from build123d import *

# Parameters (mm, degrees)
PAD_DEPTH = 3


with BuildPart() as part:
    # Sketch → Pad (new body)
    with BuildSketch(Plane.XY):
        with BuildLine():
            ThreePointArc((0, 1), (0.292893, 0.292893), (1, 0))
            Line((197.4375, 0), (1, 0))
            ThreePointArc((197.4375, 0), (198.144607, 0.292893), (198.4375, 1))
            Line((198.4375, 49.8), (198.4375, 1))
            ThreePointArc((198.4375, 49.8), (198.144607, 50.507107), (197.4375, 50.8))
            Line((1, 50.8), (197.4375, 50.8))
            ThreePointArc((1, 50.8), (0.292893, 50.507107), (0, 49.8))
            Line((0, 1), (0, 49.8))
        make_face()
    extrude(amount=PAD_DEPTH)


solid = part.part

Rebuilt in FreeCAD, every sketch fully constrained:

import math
import FreeCAD as App
import Part
import Sketcher
Q = App.Units.Quantity

doc = App.newDocument("Part")
body = doc.addObject("PartDesign::Body", "Body")

# Sketch on XY plane
sketch1 = body.newObject("Sketcher::SketchObject", "Sketch")
sketch1.AttachmentSupport = (doc.getObject("XY_Plane"), [""])
sketch1.MapMode = "FlatFace"
sketch1.addGeometry([
    Part.ArcOfCircle(Part.Circle(App.Vector(0.999999, 0.999999, 0), App.Vector(0, 0, 1), 0.999999), math.radians(179.999957), math.radians(270.000043)),  # 0
    Part.LineSegment(App.Vector(1, 0, 0), App.Vector(197.4375, 0, 0)),  # 1
    Part.ArcOfCircle(Part.Circle(App.Vector(197.437501, 0.999999, 0), App.Vector(0, 0, 1), 0.999999), math.radians(-90.000043), math.radians(0.000043)),  # 2
    Part.LineSegment(App.Vector(198.4375, 1, 0), App.Vector(198.4375, 49.8, 0)),  # 3
    Part.ArcOfCircle(Part.Circle(App.Vector(197.437501, 49.800001, 0), App.Vector(0, 0, 1), 0.999999), math.radians(-0.000043), math.radians(90.000043)),  # 4
    Part.LineSegment(App.Vector(197.4375, 50.8, 0), App.Vector(1, 50.8, 0)),  # 5
    Part.ArcOfCircle(Part.Circle(App.Vector(0.999999, 49.800001, 0), App.Vector(0, 0, 1), 0.999999), math.radians(89.999957), math.radians(180.000043)),  # 6
    Part.LineSegment(App.Vector(0, 49.8, 0), App.Vector(0, 1, 0)),  # 7
], False)
sketch1.addConstraint([
    Sketcher.Constraint("Tangent", 0, 2, 1, 1),
    Sketcher.Constraint("Tangent", 1, 2, 2, 1),
    Sketcher.Constraint("Tangent", 2, 2, 3, 1),
    Sketcher.Constraint("Tangent", 3, 2, 4, 1),
    Sketcher.Constraint("Tangent", 4, 2, 5, 1),
    Sketcher.Constraint("Tangent", 5, 2, 6, 1),
    Sketcher.Constraint("Tangent", 6, 2, 7, 1),
    Sketcher.Constraint("Tangent", 7, 2, 0, 1),
    Sketcher.Constraint("Horizontal", 1),
    Sketcher.Constraint("Vertical", 3),
    Sketcher.Constraint("Horizontal", 5),
    Sketcher.Constraint("Vertical", 7),
    Sketcher.Constraint("Equal", 0, 2),
    Sketcher.Constraint("Equal", 2, 4),
    Sketcher.Constraint("Equal", 4, 6),
    Sketcher.Constraint("PointOnObject", 0, 2, -1),
    Sketcher.Constraint("PointOnObject", 6, 2, -2),
    Sketcher.Constraint("Radius", 0, Q("0.999999 mm")),
    Sketcher.Constraint("DistanceY", 3, 1, 3, 2, Q("48.8 mm")),
    Sketcher.Constraint("DistanceX", 1, 1, 1, 2, Q("196.4375 mm")),
])
pad1 = body.newObject("PartDesign::Pad", "Pad")
pad1.Profile = sketch1
pad1.Length = 3

doc.recompute()
